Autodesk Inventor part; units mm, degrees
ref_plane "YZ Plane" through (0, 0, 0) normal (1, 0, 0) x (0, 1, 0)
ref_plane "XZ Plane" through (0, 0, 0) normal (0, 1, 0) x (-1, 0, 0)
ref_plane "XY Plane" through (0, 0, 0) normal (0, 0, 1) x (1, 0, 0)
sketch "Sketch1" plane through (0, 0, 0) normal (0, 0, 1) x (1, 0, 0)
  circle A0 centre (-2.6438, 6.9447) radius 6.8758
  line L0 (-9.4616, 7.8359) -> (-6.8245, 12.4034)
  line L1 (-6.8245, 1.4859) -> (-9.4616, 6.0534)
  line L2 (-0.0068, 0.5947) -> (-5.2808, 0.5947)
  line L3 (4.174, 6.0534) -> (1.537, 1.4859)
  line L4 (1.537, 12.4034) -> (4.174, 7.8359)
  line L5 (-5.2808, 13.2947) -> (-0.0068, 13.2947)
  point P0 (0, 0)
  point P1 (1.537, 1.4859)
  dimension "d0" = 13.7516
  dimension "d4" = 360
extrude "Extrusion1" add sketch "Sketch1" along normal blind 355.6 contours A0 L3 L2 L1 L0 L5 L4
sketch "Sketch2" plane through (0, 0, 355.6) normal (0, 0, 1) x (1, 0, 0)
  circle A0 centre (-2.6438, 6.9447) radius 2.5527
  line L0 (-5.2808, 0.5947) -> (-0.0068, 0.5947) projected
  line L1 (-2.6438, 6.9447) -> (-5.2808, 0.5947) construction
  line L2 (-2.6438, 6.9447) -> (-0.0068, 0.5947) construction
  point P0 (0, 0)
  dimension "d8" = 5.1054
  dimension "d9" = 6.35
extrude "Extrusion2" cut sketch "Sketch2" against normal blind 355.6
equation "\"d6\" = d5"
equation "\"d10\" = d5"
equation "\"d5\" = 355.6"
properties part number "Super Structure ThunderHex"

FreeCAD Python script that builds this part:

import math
import FreeCAD as App
import Part
import Sketcher

V = App.Vector
Q = App.Units.Quantity

doc = App.newDocument("Part")
body = doc.addObject("PartDesign::Body", "Body")

# Sketch on XY plane
sketch1 = body.newObject("Sketcher::SketchObject", "Sketch")
sketch1.AttachmentSupport = (doc.getObject("XY_Plane"), [""])
sketch1.MapMode = "FlatFace"
sketch1.addGeometry([
    Part.ArcOfCircle(Part.Circle(V(-2.6438, 6.9447, 0), V(0, 0, 1), 6.8758), math.radians(-7.448114), math.radians(7.447287)),  # 0
    Part.LineSegment(V(4.174, 7.8359, 0), V(1.537, 12.4034, 0)),  # 1
    Part.ArcOfCircle(Part.Circle(V(-2.6438, 6.9447, 0), V(0, 0, 1), 6.8758), math.radians(52.551618), math.radians(67.448081)),  # 2
    Part.LineSegment(V(-0.0068, 13.2947, 0), V(-5.2808, 13.2947, 0)),  # 3
    Part.ArcOfCircle(Part.Circle(V(-2.6438, 6.9447, 0), V(0, 0, 1), 6.8758), math.radians(112.551919), math.radians(127.447721)),  # 4
    Part.LineSegment(V(-6.8245, 12.4034, 0), V(-9.4616, 7.8359, 0)),  # 5
    Part.ArcOfCircle(Part.Circle(V(-2.6438, 6.9447, 0), V(0, 0, 1), 6.8758), math.radians(172.552713), math.radians(187.448114)),  # 6
    Part.LineSegment(V(-9.4616, 6.0534, 0), V(-6.8245, 1.4859, 0)),  # 7
    Part.ArcOfCircle(Part.Circle(V(-2.6438, 6.9447, 0), V(0, 0, 1), 6.8758), math.radians(-127.447214), math.radians(-112.551919)),  # 8
    Part.LineSegment(V(-5.2808, 0.5947, 0), V(-0.0068, 0.5947, 0)),  # 9
    Part.ArcOfCircle(Part.Circle(V(-2.6438, 6.9447, 0), V(0, 0, 1), 6.8758), math.radians(-67.448081), math.radians(-52.552124)),  # 10
    Part.LineSegment(V(1.537, 1.4859, 0), V(4.174, 6.0534, 0)),  # 11
], False)
sketch1.addConstraint([
    Sketcher.Constraint("Coincident", 0, 2, 1, 1),
    Sketcher.Constraint("Coincident", 1, 2, 2, 1),
    Sketcher.Constraint("Coincident", 2, 2, 3, 1),
    Sketcher.Constraint("Coincident", 3, 2, 4, 1),
    Sketcher.Constraint("Coincident", 4, 2, 5, 1),
    Sketcher.Constraint("Coincident", 5, 2, 6, 1),
    Sketcher.Constraint("Coincident", 6, 2, 7, 1),
    Sketcher.Constraint("Coincident", 7, 2, 8, 1),
    Sketcher.Constraint("Coincident", 8, 2, 9, 1),
    Sketcher.Constraint("Coincident", 9, 2, 10, 1),
    Sketcher.Constraint("Coincident", 10, 2, 11, 1),
    Sketcher.Constraint("Coincident", 11, 2, 0, 1),
    Sketcher.Constraint("Horizontal", 3),
    Sketcher.Constraint("Horizontal", 9),
    Sketcher.Constraint("Coincident", 2, 3, 0, 3),
    Sketcher.Constraint("Coincident", 4, 3, 0, 3),
    Sketcher.Constraint("Coincident", 6, 3, 0, 3),
    Sketcher.Constraint("Coincident", 8, 3, 0, 3),
    Sketcher.Constraint("Coincident", 10, 3, 0, 3),
    Sketcher.Constraint("Equal", 0, 2),
    Sketcher.Constraint("Equal", 2, 4),
    Sketcher.Constraint("Equal", 4, 6),
    Sketcher.Constraint("Equal", 6, 8),
    Sketcher.Constraint("Equal", 8, 10),
    Sketcher.Constraint("Parallel", 1, 7),
    Sketcher.Constraint("Parallel", 5, 11),
    Sketcher.Constraint("Horizontal", 1, 2, 4, 2),
    Sketcher.Constraint("Horizontal", 0, 2, 5, 2),
    Sketcher.Constraint("Horizontal", 7, 2, 10, 2),
    Sketcher.Constraint("Vertical", 5, 2, 6, 2),
    Sketcher.Constraint("Vertical", 3, 2, 8, 2),
    Sketcher.Constraint("Radius", 0, Q("0.2707 in")),
    Sketcher.Constraint("Angle", 1, Q("119.9996 deg")),
    Sketcher.Constraint("DistanceY", 0, 3, 2, 2, Q("0.25 in")),
    Sketcher.Constraint("DistanceY", 10, 2, 0, 2, Q("0.25 in")),
    Sketcher.Constraint("DistanceY", -1, 1, 0, 2, Q("0.3085 in")),
    Sketcher.Constraint("DistanceX", -1, 1, 1, 2, Q("0.0605 in")),
])
pad1 = body.newObject("PartDesign::Pad", "Pad")
pad1.Profile = sketch1
pad1.Length = Q("14 in")

# Sketch on XY plane
sketch2 = body.newObject("Sketcher::SketchObject", "Sketch001")
sketch2.AttachmentSupport = (doc.getObject("XY_Plane"), [""])
sketch2.MapMode = "FlatFace"
sketch2.AttachmentOffset = App.Placement(V(0, 0, 14 * 25.4), App.Rotation())
sketch2.addGeometry(Part.Circle(V(-2.6438, 6.9447, 0), V(0, 0, 1), 2.5527), False)
sketch2.addConstraint([
    Sketcher.Constraint("Diameter", 0, Q("0.201 in")),
    Sketcher.Constraint("DistanceX", 0, 3, -1, 1, 2.6438),
    Sketcher.Constraint("DistanceY", -1, 1, 0, 3, 6.9447),
])
pocket1 = body.newObject("PartDesign::Pocket", "Pocket")
pocket1.Profile = sketch2
pocket1.Length = Q("14 in")

doc.recompute()
